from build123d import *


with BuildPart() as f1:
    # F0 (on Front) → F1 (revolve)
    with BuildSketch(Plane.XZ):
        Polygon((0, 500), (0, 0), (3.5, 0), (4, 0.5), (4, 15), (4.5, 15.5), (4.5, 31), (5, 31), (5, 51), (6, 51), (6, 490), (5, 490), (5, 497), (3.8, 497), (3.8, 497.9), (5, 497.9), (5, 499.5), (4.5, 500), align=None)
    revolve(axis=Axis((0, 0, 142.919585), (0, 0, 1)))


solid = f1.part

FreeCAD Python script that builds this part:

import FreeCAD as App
import Part
import Sketcher

V = App.Vector
Q = App.Units.Quantity


def add_polygon(sketch, points):
    """Adds a closed chain of lines whose ends are joined by coincident constraints."""
    first, n = sketch.GeometryCount, len(points)
    for a, b in zip(points, points[1:] + points[:1]):
        sketch.addGeometry(Part.LineSegment(App.Vector(*a, 0), App.Vector(*b, 0)), False)
    for i in range(n):
        sketch.addConstraint(Sketcher.Constraint("Coincident", first + i, 2, first + (i + 1) % n, 1))

doc = App.newDocument("Part")
body = doc.addObject("PartDesign::Body", "Body")

sketch1 = body.newObject("Sketcher::SketchObject", "Sketch")
sketch1.AttachmentSupport = (doc.getObject("XZ_Plane"), [""])
sketch1.MapMode = "FlatFace"
add_polygon(sketch1, [(0, 500), (0, 0), (3.5, 0), (4, 0.5), (4, 15), (4.5, 15.5), (4.5, 31), (5, 31), (5, 51), (6, 51), (6, 490), (5, 490), (5, 497), (3.8, 497), (3.8, 497.9), (5, 497.9), (5, 499.5), (4.5, 500)])
sketch1.addConstraint([
    Sketcher.Constraint("Vertical", 0),
    Sketcher.Constraint("Horizontal", 1),
    Sketcher.Constraint("Vertical", 3),
    Sketcher.Constraint("Vertical", 5),
    Sketcher.Constraint("Horizontal", 6),
    Sketcher.Constraint("Vertical", 7),
    Sketcher.Constraint("Horizontal", 8),
    Sketcher.Constraint("Vertical", 9),
    Sketcher.Constraint("Horizontal", 10),
    Sketcher.Constraint("Vertical", 11),
    Sketcher.Constraint("Horizontal", 12),
    Sketcher.Constraint("Vertical", 13),
    Sketcher.Constraint("Horizontal", 14),
    Sketcher.Constraint("Vertical", 15),
    Sketcher.Constraint("Horizontal", 17),
    Sketcher.Constraint("Coincident", 0, 2, -1, 1),
    Sketcher.Constraint("Parallel", 2, 4),
    Sketcher.Constraint("Perpendicular", 4, 16),
    Sketcher.Constraint("Vertical", 7, 2, 10, 2),
    Sketcher.Constraint("Vertical", 11, 2, 14, 2),
    Sketcher.Constraint("Vertical", 5, 2, 16, 2),
    Sketcher.Constraint("Equal", 2, 4),
    Sketcher.Constraint("Equal", 4, 16),
    Sketcher.Constraint("DistanceX", 8, 1, 8, 2, Q("1 mm")),
    Sketcher.Constraint("DistanceY", 0, 2, 0, 1, Q("500 mm")),
    Sketcher.Constraint("DistanceY", 7, 1, 7, 2, Q("20 mm")),
    Sketcher.Constraint("DistanceY", 9, 1, 9, 2, Q("439 mm")),
    Sketcher.Constraint("DistanceY", 11, 1, 11, 2, Q("7 mm")),
    Sketcher.Constraint("Angle", 2, Q("45 deg")),
    Sketcher.Constraint("DistanceX", 1, 1, 1, 2, Q("3.5 mm")),
    Sketcher.Constraint("DistanceX", 6, 1, 6, 2, Q("0.5 mm")),
    Sketcher.Constraint("DistanceX", 12, 2, 12, 1, Q("1.2 mm")),
    Sketcher.Constraint("DistanceY", 3, 1, 3, 2, Q("14.5 mm")),
    Sketcher.Constraint("DistanceY", 5, 1, 5, 2, Q("15.5 mm")),
    Sketcher.Constraint("DistanceY", 13, 1, 13, 2, Q("0.9 mm")),
])
revolution = body.newObject("PartDesign::Revolution", "Revolution")
revolution.Profile = sketch1
revolution.ReferenceAxis = (sketch1, ["V_Axis"])
revolution.Angle = 360

doc.recompute()
